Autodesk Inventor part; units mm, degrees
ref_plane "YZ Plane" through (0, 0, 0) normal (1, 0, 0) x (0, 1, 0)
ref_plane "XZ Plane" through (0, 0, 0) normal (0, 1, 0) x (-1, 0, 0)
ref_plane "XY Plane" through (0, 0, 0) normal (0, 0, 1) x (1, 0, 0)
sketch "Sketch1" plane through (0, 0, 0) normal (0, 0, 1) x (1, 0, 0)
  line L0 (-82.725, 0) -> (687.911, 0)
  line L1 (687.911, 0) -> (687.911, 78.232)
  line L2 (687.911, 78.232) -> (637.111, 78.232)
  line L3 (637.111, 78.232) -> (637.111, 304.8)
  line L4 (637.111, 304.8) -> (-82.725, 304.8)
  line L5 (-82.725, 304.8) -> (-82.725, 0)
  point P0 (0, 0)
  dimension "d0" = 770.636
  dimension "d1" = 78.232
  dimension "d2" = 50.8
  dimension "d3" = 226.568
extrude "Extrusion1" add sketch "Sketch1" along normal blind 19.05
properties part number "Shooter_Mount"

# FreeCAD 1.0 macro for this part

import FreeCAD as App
import Part
import Sketcher

V = App.Vector
Q = App.Units.Quantity

doc = App.newDocument("Part")
params = doc.addObject("Spreadsheet::Sheet", "Params")
for row, (alias, value) in enumerate([
    ("sketch1_width", "2 in"),
    ("sketch1_width2", "30.34 in"),
    ("sketch1_height", "3.08 in"),
    ("sketch1_height2", "8.92 in"),
    ("pad1_length", "0.75 in"),
], start=1):
    params.set(f"A{row}", alias)
    params.set(f"B{row}", "=" + value)
    params.setAlias(f"B{row}", alias)

body = doc.addObject("PartDesign::Body", "Body")

# Sketch on XY plane
sketch1 = doc.addObject("Sketcher::SketchObject", "Sketch")
body.addObject(sketch1)
sketch1.AttachmentSupport = (doc.XY_Plane, [""])
sketch1.MapMode = "FlatFace"
sketch1.addGeometry(Part.LineSegment(V(-83, 305, 0), V(-83, 0, 0)), False)
sketch1.addGeometry(Part.LineSegment(V(-83, 0, 0), V(688, 0, 0)), False)
sketch1.addGeometry(Part.LineSegment(V(688, 0, 0), V(688, 78, 0)), False)
sketch1.addGeometry(Part.LineSegment(V(688, 78, 0), V(637, 78, 0)), False)
sketch1.addGeometry(Part.LineSegment(V(637, 78, 0), V(637, 305, 0)), False)
sketch1.addGeometry(Part.LineSegment(V(637, 305, 0), V(-83, 305, 0)), False)
sketch1.addConstraint(Sketcher.Constraint("Coincident", 0, 2, 1, 1))
sketch1.addConstraint(Sketcher.Constraint("Coincident", 1, 2, 2, 1))
sketch1.addConstraint(Sketcher.Constraint("Coincident", 2, 2, 3, 1))
sketch1.addConstraint(Sketcher.Constraint("Coincident", 3, 2, 4, 1))
sketch1.addConstraint(Sketcher.Constraint("Coincident", 4, 2, 5, 1))
sketch1.addConstraint(Sketcher.Constraint("Coincident", 5, 2, 0, 1))
sketch1.addConstraint(Sketcher.Constraint("Vertical", 0))
sketch1.addConstraint(Sketcher.Constraint("Horizontal", 1))
sketch1.addConstraint(Sketcher.Constraint("Vertical", 2))
sketch1.addConstraint(Sketcher.Constraint("Horizontal", 3))
sketch1.addConstraint(Sketcher.Constraint("Vertical", 4))
sketch1.addConstraint(Sketcher.Constraint("Horizontal", 5))
sketch1.addConstraint(Sketcher.Constraint("PointOnObject", 0, 2, -1))
sketch1.addConstraint(Sketcher.Constraint("DistanceX", 3, 2, 3, 1, Q("2 in")))
sketch1.addConstraint(Sketcher.Constraint("DistanceX", 1, 1, 1, 2, Q("30.34 in")))
sketch1.addConstraint(Sketcher.Constraint("DistanceY", 2, 1, 2, 2, Q("3.08 in")))
sketch1.addConstraint(Sketcher.Constraint("DistanceY", 4, 1, 4, 2, Q("8.92 in")))
sketch1.addConstraint(Sketcher.Constraint("DistanceX", 0, 2, -1, 1, Q("3.2569 in")))
sketch1.setExpression("Constraints[13]", "Params.sketch1_width")
sketch1.setExpression("Constraints[14]", "Params.sketch1_width2")
sketch1.setExpression("Constraints[15]", "Params.sketch1_height")
sketch1.setExpression("Constraints[16]", "Params.sketch1_height2")
pad1 = doc.addObject("PartDesign::Pad", "Pad")
body.addObject(pad1)
pad1.Profile = sketch1
pad1.setExpression("Length", "Params.pad1_length")

doc.recompute()
